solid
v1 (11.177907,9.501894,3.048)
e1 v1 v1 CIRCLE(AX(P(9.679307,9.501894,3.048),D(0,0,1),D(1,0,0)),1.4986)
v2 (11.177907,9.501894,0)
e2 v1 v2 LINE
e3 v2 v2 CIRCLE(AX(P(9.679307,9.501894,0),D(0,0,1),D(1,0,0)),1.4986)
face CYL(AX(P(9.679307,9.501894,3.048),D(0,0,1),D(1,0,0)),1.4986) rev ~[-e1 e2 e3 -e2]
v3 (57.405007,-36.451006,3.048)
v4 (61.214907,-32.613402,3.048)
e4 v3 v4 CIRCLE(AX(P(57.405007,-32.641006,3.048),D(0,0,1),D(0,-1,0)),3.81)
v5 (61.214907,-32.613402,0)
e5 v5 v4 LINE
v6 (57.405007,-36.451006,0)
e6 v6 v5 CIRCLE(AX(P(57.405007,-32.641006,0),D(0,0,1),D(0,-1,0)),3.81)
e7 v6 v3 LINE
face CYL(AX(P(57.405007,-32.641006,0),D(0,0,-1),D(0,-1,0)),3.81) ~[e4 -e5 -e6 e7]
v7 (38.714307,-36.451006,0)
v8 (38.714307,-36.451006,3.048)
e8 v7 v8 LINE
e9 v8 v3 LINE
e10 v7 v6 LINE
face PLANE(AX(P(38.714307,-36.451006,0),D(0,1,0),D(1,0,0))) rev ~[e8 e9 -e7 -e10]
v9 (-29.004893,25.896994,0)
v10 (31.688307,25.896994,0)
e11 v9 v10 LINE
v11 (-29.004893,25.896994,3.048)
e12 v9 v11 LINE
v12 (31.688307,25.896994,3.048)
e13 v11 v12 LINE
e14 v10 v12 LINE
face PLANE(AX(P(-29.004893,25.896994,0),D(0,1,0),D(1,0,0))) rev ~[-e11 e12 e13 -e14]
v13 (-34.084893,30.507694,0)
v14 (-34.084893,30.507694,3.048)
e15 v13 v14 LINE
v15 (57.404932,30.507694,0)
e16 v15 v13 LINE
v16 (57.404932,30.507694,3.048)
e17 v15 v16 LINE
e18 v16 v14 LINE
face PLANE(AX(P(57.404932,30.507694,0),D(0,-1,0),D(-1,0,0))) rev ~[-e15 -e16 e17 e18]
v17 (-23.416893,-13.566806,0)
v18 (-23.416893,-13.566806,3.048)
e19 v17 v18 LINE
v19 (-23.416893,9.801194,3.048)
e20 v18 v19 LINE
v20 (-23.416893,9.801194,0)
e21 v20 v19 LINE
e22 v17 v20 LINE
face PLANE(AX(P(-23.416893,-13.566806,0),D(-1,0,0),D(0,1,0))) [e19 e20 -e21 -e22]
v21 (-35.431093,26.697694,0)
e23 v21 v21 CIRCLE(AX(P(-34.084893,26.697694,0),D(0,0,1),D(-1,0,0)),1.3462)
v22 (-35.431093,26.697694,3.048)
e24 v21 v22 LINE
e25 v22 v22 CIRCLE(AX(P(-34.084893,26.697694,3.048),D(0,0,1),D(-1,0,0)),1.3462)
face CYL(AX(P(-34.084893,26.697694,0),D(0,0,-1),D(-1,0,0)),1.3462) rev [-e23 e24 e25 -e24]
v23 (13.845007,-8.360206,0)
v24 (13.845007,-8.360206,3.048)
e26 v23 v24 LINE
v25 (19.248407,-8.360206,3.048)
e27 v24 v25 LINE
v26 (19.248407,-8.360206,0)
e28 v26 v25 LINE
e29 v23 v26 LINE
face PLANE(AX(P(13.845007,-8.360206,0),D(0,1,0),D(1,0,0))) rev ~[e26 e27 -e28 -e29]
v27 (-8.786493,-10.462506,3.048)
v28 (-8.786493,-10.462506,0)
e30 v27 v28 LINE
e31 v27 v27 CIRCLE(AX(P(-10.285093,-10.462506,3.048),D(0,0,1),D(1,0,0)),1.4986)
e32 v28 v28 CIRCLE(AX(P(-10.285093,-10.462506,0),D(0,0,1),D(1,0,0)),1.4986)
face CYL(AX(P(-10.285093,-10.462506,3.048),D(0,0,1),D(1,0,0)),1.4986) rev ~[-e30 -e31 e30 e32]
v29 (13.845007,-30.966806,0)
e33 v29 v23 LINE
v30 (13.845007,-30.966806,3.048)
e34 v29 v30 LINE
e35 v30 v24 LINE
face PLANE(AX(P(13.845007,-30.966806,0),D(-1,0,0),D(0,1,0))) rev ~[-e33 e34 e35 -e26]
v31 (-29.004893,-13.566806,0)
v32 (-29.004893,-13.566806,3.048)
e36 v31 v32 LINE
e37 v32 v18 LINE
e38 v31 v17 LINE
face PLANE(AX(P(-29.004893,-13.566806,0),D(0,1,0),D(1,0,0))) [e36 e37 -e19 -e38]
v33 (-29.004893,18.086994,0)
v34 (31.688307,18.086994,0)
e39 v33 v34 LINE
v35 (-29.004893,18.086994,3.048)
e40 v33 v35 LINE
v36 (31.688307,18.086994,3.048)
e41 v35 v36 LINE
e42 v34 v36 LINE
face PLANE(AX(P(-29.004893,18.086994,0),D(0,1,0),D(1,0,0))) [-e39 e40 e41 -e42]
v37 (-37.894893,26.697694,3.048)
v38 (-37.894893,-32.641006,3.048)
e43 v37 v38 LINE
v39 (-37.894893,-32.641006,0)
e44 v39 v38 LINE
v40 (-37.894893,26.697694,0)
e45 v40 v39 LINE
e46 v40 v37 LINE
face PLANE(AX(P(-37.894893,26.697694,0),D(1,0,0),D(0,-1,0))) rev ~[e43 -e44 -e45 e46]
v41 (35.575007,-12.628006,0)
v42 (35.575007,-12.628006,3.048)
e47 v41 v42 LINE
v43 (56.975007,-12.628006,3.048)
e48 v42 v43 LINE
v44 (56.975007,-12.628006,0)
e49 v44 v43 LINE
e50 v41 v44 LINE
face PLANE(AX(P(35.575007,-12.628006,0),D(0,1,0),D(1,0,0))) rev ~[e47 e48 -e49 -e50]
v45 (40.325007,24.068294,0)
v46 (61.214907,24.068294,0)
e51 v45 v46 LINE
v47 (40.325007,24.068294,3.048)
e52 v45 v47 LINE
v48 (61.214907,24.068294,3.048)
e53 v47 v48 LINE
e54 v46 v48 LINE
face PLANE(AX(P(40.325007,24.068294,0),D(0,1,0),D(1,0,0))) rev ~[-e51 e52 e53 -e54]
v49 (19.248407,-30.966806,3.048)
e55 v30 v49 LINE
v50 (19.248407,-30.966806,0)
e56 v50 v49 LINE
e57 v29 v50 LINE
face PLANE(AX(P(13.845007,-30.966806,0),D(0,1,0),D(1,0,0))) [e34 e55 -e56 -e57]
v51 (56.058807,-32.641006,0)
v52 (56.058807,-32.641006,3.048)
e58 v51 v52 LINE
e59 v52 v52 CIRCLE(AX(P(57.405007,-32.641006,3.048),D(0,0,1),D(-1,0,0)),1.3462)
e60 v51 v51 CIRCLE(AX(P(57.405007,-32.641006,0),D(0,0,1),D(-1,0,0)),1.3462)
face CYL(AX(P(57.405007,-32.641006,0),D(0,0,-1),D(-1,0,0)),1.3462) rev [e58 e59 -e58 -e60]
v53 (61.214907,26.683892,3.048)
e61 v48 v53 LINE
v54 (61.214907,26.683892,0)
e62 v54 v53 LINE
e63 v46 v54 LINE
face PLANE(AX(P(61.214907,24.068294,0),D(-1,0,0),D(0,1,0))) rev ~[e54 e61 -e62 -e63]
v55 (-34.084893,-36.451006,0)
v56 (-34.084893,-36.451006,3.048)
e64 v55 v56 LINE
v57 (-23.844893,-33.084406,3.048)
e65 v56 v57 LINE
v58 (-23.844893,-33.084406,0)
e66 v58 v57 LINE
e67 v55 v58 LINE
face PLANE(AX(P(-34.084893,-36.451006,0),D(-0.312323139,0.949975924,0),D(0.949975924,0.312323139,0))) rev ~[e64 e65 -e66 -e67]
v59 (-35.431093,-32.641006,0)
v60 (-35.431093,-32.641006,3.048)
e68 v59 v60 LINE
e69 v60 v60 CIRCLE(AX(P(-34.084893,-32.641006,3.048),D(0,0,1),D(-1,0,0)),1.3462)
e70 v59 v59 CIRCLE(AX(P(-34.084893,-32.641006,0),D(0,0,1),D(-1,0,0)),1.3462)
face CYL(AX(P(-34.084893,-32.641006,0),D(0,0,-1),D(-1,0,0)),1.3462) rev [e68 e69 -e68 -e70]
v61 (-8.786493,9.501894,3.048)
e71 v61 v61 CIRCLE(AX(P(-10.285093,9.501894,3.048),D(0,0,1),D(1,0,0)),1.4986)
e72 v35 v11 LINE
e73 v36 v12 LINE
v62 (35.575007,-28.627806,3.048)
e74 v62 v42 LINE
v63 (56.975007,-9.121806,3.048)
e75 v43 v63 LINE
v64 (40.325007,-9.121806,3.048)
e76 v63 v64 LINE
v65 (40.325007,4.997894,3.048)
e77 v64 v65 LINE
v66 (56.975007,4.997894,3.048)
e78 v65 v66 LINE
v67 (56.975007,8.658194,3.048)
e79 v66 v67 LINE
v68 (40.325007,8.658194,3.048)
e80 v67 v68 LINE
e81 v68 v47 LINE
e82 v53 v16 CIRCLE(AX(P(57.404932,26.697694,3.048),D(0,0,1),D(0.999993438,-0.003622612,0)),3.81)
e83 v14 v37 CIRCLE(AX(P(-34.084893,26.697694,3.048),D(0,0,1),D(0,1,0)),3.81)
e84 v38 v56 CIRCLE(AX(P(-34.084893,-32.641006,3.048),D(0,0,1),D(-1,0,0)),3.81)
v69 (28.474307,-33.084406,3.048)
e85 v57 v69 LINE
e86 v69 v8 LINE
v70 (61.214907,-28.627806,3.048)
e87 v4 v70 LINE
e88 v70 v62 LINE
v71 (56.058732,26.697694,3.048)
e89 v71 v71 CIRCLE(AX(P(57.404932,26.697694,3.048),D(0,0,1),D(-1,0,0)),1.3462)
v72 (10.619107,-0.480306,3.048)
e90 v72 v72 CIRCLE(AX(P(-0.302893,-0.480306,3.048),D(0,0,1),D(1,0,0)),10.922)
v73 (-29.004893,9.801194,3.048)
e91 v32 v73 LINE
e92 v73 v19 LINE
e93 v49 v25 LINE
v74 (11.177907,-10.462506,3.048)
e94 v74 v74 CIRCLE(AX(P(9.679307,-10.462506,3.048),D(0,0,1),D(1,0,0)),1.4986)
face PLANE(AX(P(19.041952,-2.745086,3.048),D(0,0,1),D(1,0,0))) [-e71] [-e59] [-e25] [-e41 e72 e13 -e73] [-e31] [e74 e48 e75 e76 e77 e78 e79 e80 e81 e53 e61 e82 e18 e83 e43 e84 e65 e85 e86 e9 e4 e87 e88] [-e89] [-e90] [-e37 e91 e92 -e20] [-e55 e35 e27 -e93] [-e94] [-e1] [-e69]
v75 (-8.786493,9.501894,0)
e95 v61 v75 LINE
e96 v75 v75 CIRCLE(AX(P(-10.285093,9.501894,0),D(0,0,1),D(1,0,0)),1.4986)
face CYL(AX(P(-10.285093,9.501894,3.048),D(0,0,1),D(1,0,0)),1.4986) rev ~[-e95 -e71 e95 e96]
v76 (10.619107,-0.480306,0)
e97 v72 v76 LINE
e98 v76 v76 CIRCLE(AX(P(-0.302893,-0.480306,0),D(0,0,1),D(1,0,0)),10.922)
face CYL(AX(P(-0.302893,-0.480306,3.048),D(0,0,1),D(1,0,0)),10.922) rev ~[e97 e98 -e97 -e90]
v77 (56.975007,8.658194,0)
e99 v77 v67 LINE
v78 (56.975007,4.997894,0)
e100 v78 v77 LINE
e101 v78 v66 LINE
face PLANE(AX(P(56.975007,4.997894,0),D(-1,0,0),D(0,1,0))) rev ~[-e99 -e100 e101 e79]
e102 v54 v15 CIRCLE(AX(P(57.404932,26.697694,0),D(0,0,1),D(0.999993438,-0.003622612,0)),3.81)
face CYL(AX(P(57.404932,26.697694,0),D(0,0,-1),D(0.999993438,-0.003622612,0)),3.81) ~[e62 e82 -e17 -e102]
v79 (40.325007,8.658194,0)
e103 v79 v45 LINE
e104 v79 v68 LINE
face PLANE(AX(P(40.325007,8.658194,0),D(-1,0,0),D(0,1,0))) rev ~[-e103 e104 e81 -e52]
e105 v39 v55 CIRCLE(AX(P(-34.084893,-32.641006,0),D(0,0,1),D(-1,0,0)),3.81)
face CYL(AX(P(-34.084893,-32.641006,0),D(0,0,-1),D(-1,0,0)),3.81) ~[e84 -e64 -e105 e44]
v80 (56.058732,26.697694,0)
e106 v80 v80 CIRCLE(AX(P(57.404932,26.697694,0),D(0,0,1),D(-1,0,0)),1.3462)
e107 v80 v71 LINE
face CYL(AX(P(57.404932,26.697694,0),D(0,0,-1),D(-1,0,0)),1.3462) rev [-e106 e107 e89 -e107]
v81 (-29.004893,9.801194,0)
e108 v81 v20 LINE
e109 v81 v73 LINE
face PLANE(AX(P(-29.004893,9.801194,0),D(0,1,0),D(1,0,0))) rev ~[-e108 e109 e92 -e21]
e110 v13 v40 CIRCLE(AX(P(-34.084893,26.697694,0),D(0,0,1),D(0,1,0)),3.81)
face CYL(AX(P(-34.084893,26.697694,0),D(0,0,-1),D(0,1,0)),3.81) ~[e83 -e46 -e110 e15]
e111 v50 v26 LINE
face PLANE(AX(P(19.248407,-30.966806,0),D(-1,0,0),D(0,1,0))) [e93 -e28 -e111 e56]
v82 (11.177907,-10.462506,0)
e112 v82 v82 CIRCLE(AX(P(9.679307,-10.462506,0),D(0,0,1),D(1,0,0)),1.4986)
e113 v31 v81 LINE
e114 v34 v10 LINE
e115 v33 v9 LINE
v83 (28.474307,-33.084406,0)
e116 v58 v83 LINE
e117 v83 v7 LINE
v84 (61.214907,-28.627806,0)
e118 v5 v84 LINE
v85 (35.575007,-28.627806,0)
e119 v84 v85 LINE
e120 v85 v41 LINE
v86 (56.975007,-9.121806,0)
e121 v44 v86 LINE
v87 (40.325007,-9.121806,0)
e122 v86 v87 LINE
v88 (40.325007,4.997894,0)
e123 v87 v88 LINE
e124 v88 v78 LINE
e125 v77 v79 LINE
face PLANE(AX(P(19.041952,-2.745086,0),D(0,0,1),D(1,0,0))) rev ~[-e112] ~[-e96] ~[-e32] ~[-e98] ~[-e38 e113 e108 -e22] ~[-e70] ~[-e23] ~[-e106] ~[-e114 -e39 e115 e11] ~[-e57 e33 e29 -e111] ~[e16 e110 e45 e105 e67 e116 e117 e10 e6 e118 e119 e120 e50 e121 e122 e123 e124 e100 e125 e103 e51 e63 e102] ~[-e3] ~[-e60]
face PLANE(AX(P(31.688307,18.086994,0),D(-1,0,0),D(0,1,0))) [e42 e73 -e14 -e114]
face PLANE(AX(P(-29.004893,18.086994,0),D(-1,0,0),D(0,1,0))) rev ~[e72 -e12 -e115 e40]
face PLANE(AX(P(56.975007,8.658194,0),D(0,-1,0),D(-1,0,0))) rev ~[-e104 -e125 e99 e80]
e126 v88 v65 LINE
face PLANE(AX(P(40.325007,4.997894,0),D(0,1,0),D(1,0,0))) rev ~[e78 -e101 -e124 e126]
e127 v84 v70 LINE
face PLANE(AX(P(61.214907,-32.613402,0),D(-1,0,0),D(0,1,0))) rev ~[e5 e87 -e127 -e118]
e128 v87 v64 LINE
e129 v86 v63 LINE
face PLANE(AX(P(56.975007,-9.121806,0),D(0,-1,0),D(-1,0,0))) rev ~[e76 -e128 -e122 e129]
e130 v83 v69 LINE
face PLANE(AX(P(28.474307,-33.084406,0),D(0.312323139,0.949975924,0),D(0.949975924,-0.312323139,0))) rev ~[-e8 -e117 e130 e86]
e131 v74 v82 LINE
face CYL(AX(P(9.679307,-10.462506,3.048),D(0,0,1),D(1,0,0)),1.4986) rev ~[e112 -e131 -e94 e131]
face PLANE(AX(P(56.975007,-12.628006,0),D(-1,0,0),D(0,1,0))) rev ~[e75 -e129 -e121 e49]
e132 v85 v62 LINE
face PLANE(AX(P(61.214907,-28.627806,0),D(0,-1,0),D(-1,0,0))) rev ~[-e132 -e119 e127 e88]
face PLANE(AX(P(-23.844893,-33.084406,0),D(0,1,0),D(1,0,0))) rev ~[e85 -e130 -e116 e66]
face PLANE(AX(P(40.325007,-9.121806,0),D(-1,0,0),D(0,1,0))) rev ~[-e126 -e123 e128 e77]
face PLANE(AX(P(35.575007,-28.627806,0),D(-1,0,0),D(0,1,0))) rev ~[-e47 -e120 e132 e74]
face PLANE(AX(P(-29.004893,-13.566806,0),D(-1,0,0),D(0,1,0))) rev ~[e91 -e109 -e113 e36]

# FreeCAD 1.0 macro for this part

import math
import FreeCAD as App
import Part
import Sketcher
from FreeCAD import Vector
Q = App.Units.Quantity

doc = App.newDocument("Part")
body = doc.addObject("PartDesign::Body", "Body")

sketch1 = body.newObject("Sketcher::SketchObject", "Sketch")
sketch1.AttachmentSupport = (doc.getObject("XY_Plane"), [""])
sketch1.MapMode = "FlatFace"
sketch1.addGeometry([
    Part.LineSegment(Vector(57.404932, 30.507694, 0), Vector(-34.084893, 30.507694, 0)),
    Part.ArcOfCircle(Part.Circle(Vector(-34.084893, 26.697694, 0), Vector(0, 0, 1), 3.81), math.radians(90), math.radians(180)),
    Part.LineSegment(Vector(-37.894893, 26.697694, 0), Vector(-37.894893, -32.641006, 0)),
    Part.ArcOfCircle(Part.Circle(Vector(-34.084893, -32.641006, 0), Vector(0, 0, 1), 3.81), math.radians(-180), math.radians(-90)),
    Part.LineSegment(Vector(-34.084893, -36.451006, 0), Vector(-23.844893, -33.084406, 0)),
    Part.LineSegment(Vector(-23.844893, -33.084406, 0), Vector(28.474307, -33.084406, 0)),
    Part.LineSegment(Vector(28.474307, -33.084406, 0), Vector(38.714307, -36.451006, 0)),
    Part.LineSegment(Vector(38.714307, -36.451006, 0), Vector(57.405007, -36.451006, 0)),
    Part.ArcOfCircle(Part.Circle(Vector(57.405007, -32.641006, 0), Vector(0, 0, 1), 3.81), math.radians(-90), math.radians(0.415122)),
    Part.LineSegment(Vector(61.214907, -32.613402, 0), Vector(61.214907, -28.627806, 0)),
    Part.LineSegment(Vector(61.214907, -28.627806, 0), Vector(35.575007, -28.627806, 0)),
    Part.LineSegment(Vector(35.575007, -28.627806, 0), Vector(35.575007, -12.628006, 0)),
    Part.LineSegment(Vector(35.575007, -12.628006, 0), Vector(56.975007, -12.628006, 0)),
    Part.LineSegment(Vector(56.975007, -12.628006, 0), Vector(56.975007, -9.121806, 0)),
    Part.LineSegment(Vector(56.975007, -9.121806, 0), Vector(40.325007, -9.121806, 0)),
    Part.LineSegment(Vector(40.325007, -9.121806, 0), Vector(40.325007, 4.997894, 0)),
    Part.LineSegment(Vector(40.325007, 4.997894, 0), Vector(56.975007, 4.997894, 0)),
    Part.LineSegment(Vector(56.975007, 4.997894, 0), Vector(56.975007, 8.658194, 0)),
    Part.LineSegment(Vector(56.975007, 8.658194, 0), Vector(40.325007, 8.658194, 0)),
    Part.LineSegment(Vector(40.325007, 8.658194, 0), Vector(40.325007, 24.068294, 0)),
    Part.LineSegment(Vector(40.325007, 24.068294, 0), Vector(61.214907, 24.068294, 0)),
    Part.LineSegment(Vector(61.214907, 24.068294, 0), Vector(61.214907, 26.683892, 0)),
    Part.ArcOfCircle(Part.Circle(Vector(57.404932, 26.697694, 0), Vector(0, 0, 1), 3.81), math.radians(-0.207561), math.radians(90)),
    Part.Circle(Vector(-34.084893, -32.641006, 0), Vector(0, 0, 1), 1.3462),
    Part.LineSegment(Vector(19.248407, -30.966806, 0), Vector(13.845007, -30.966806, 0)),
    Part.LineSegment(Vector(13.845007, -30.966806, 0), Vector(13.845007, -8.360206, 0)),
    Part.LineSegment(Vector(13.845007, -8.360206, 0), Vector(19.248407, -8.360206, 0)),
    Part.LineSegment(Vector(19.248407, -8.360206, 0), Vector(19.248407, -30.966806, 0)),
    Part.Circle(Vector(57.405007, -32.641006, 0), Vector(0, 0, 1), 1.3462),
    Part.LineSegment(Vector(-23.416893, -13.566806, 0), Vector(-29.004893, -13.566806, 0)),
    Part.LineSegment(Vector(-29.004893, -13.566806, 0), Vector(-29.004893, 9.801194, 0)),
    Part.LineSegment(Vector(-29.004893, 9.801194, 0), Vector(-23.416893, 9.801194, 0)),
    Part.LineSegment(Vector(-23.416893, 9.801194, 0), Vector(-23.416893, -13.566806, 0)),
    Part.Circle(Vector(-34.084893, 26.697694, 0), Vector(0, 0, 1), 1.3462),
    Part.LineSegment(Vector(31.688307, 18.086994, 0), Vector(-29.004893, 18.086994, 0)),
    Part.LineSegment(Vector(-29.004893, 18.086994, 0), Vector(-29.004893, 25.896994, 0)),
    Part.LineSegment(Vector(-29.004893, 25.896994, 0), Vector(31.688307, 25.896994, 0)),
    Part.LineSegment(Vector(31.688307, 25.896994, 0), Vector(31.688307, 18.086994, 0)),
    Part.Circle(Vector(57.404932, 26.697694, 0), Vector(0, 0, 1), 1.3462),
], False)
sketch1.addConstraint([
    Sketcher.Constraint("Tangent", 0, 2, 1, 1),
    Sketcher.Constraint("Tangent", 1, 2, 2, 1),
    Sketcher.Constraint("Tangent", 2, 2, 3, 1),
    Sketcher.Constraint("Coincident", 3, 2, 4, 1),
    Sketcher.Constraint("Coincident", 4, 2, 5, 1),
    Sketcher.Constraint("Coincident", 5, 2, 6, 1),
    Sketcher.Constraint("Coincident", 6, 2, 7, 1),
    Sketcher.Constraint("Tangent", 7, 2, 8, 1),
    Sketcher.Constraint("Coincident", 8, 2, 9, 1),
    Sketcher.Constraint("Coincident", 9, 2, 10, 1),
    Sketcher.Constraint("Coincident", 10, 2, 11, 1),
    Sketcher.Constraint("Coincident", 11, 2, 12, 1),
    Sketcher.Constraint("Coincident", 12, 2, 13, 1),
    Sketcher.Constraint("Coincident", 13, 2, 14, 1),
    Sketcher.Constraint("Coincident", 14, 2, 15, 1),
    Sketcher.Constraint("Coincident", 15, 2, 16, 1),
    Sketcher.Constraint("Coincident", 16, 2, 17, 1),
    Sketcher.Constraint("Coincident", 17, 2, 18, 1),
    Sketcher.Constraint("Coincident", 18, 2, 19, 1),
    Sketcher.Constraint("Coincident", 19, 2, 20, 1),
    Sketcher.Constraint("Coincident", 20, 2, 21, 1),
    Sketcher.Constraint("Coincident", 21, 2, 22, 1),
    Sketcher.Constraint("Tangent", 22, 2, 0, 1),
    Sketcher.Constraint("Coincident", 24, 2, 25, 1),
    Sketcher.Constraint("Coincident", 25, 2, 26, 1),
    Sketcher.Constraint("Coincident", 26, 2, 27, 1),
    Sketcher.Constraint("Coincident", 27, 2, 24, 1),
    Sketcher.Constraint("Coincident", 29, 2, 30, 1),
    Sketcher.Constraint("Coincident", 30, 2, 31, 1),
    Sketcher.Constraint("Coincident", 31, 2, 32, 1),
    Sketcher.Constraint("Coincident", 32, 2, 29, 1),
    Sketcher.Constraint("Coincident", 34, 2, 35, 1),
    Sketcher.Constraint("Coincident", 35, 2, 36, 1),
    Sketcher.Constraint("Coincident", 36, 2, 37, 1),
    Sketcher.Constraint("Coincident", 37, 2, 34, 1),
    Sketcher.Constraint("Horizontal", 0),
    Sketcher.Constraint("Vertical", 2),
    Sketcher.Constraint("Horizontal", 5),
    Sketcher.Constraint("Horizontal", 7),
    Sketcher.Constraint("Vertical", 9),
    Sketcher.Constraint("Horizontal", 10),
    Sketcher.Constraint("Vertical", 11),
    Sketcher.Constraint("Horizontal", 12),
    Sketcher.Constraint("Vertical", 13),
    Sketcher.Constraint("Horizontal", 14),
    Sketcher.Constraint("Vertical", 15),
    Sketcher.Constraint("Horizontal", 16),
    Sketcher.Constraint("Vertical", 17),
    Sketcher.Constraint("Horizontal", 18),
    Sketcher.Constraint("Vertical", 19),
    Sketcher.Constraint("Horizontal", 20),
    Sketcher.Constraint("Vertical", 21),
    Sketcher.Constraint("Horizontal", 24),
    Sketcher.Constraint("Vertical", 25),
    Sketcher.Constraint("Horizontal", 26),
    Sketcher.Constraint("Vertical", 27),
    Sketcher.Constraint("Horizontal", 29),
    Sketcher.Constraint("Vertical", 30),
    Sketcher.Constraint("Horizontal", 31),
    Sketcher.Constraint("Vertical", 32),
    Sketcher.Constraint("Horizontal", 34),
    Sketcher.Constraint("Vertical", 35),
    Sketcher.Constraint("Horizontal", 36),
    Sketcher.Constraint("Vertical", 37),
    Sketcher.Constraint("Coincident", 23, 3, 3, 3),
    Sketcher.Constraint("Coincident", 28, 3, 8, 3),
    Sketcher.Constraint("Coincident", 33, 3, 1, 3),
    Sketcher.Constraint("Coincident", 38, 3, 22, 3),
    Sketcher.Constraint("Equal", 1, 3),
    Sketcher.Constraint("Equal", 3, 8),
    Sketcher.Constraint("Equal", 8, 22),
    Sketcher.Constraint("Equal", 23, 28),
    Sketcher.Constraint("Equal", 28, 33),
    Sketcher.Constraint("Equal", 33, 38),
    Sketcher.Constraint("Horizontal", 3, 3, 8, 3),
    Sketcher.Constraint("Vertical", 0, 2, 3, 2),
    Sketcher.Constraint("Vertical", 13, 2, 16, 2),
    Sketcher.Constraint("Vertical", 15, 2, 18, 2),
    Sketcher.Constraint("Vertical", 9, 2, 20, 2),
    Sketcher.Constraint("Vertical", 30, 2, 34, 2),
    Sketcher.Constraint("Equal", 4, 6),
    Sketcher.Constraint("Radius", 1, Q("0.15 in")),
    Sketcher.Constraint("Diameter", 23, Q("0.106 in")),
    Sketcher.Constraint("DistanceX", 29, 2, 29, 1, Q("0.22 in")),
    Sketcher.Constraint("DistanceY", 30, 1, 30, 2, Q("0.92 in")),
    Sketcher.Constraint("DistanceY", 13, 2, 17, 2, Q("0.7 in")),
    Sketcher.Constraint("DistanceX", 3, 3, 29, 2, Q("0.2 in")),
    Sketcher.Constraint("DistanceX", 5, 2, 8, 2, Q("1.289 in")),
    Sketcher.Constraint("DistanceY", 8, 3, 9, 2, Q("0.158 in")),
    Sketcher.Constraint("DistanceY", 24, 2, 11, 2, Q("0.722 in")),
    Sketcher.Constraint("DistanceX", 5, 1, 5, 2, 52.3192),
    Sketcher.Constraint("DistanceX", 7, 1, 7, 2, 18.6907),
    Sketcher.Constraint("DistanceX", 10, 2, 10, 1, 25.6399),
    Sketcher.Constraint("DistanceX", 12, 1, 12, 2, 21.4),
    Sketcher.Constraint("DistanceX", 14, 2, 14, 1, 16.65),
    Sketcher.Constraint("DistanceX", 24, 2, 24, 1, 5.4034),
    Sketcher.Constraint("DistanceX", 34, 2, 34, 1, 60.6932),
    Sketcher.Constraint("DistanceY", 2, 2, 2, 1, 59.3387),
    Sketcher.Constraint("DistanceY", 11, 1, 11, 2, 15.9998),
    Sketcher.Constraint("DistanceY", 13, 1, 13, 2, 3.5062),
    Sketcher.Constraint("DistanceY", 15, 1, 15, 2, 14.1197),
    Sketcher.Constraint("DistanceY", 19, 1, 19, 2, 15.4101),
    Sketcher.Constraint("DistanceY", 25, 1, 25, 2, 22.6066),
    Sketcher.Constraint("DistanceY", 35, 1, 35, 2, 7.81),
    Sketcher.Constraint("DistanceY", 8, 2, -1, 1, 32.613402),
    Sketcher.Constraint("DistanceY", 4, 2, 3, 3, 0.4434),
    Sketcher.Constraint("DistanceX", 24, 2, 5, 2, 14.6293),
    Sketcher.Constraint("DistanceY", 3, 3, 29, 2, 19.0742),
    Sketcher.Constraint("DistanceY", 30, 2, 34, 2, 8.2858),
    Sketcher.Constraint("DistanceX", 0, 2, 0, 1, 91.489825),
    Sketcher.Constraint("DistanceY", 9, 1, 9, 2, 3.985596),
    Sketcher.Constraint("DistanceX", 1, 3, -1, 1, 34.084893),
])
pad1 = body.newObject("PartDesign::Pad", "Pad")
pad1.Profile = sketch1
pad1.Length = Q("0.12 in")

sketch2 = body.newObject("Sketcher::SketchObject", "Sketch001")
sketch2.AttachmentSupport = (doc.getObject("XY_Plane"), [""])
sketch2.MapMode = "FlatFace"
sketch2.AttachmentOffset = App.Placement(Vector(0, 0, 0.12 * 25.4), App.Rotation())
sketch2.addGeometry([
    Part.Circle(Vector(-0.302893, -0.480306, 0), Vector(0, 0, 1), 10.922),
    Part.Circle(Vector(-10.285093, -10.462506, 0), Vector(0, 0, 1), 1.4986),
    Part.Circle(Vector(-10.285093, 9.501894, 0), Vector(0, 0, 1), 1.4986),
    Part.Circle(Vector(9.679307, -10.462506, 0), Vector(0, 0, 1), 1.4986),
    Part.Circle(Vector(9.679307, 9.501894, 0), Vector(0, 0, 1), 1.4986),
], False)
sketch2.addConstraint([
    Sketcher.Constraint("Equal", 1, 2),
    Sketcher.Constraint("Equal", 2, 3),
    Sketcher.Constraint("Equal", 3, 4),
    Sketcher.Constraint("Horizontal", 1, 3, 3, 3),
    Sketcher.Constraint("Horizontal", 2, 3, 4, 3),
    Sketcher.Constraint("Vertical", 1, 3, 2, 3),
    Sketcher.Constraint("Vertical", 3, 3, 4, 3),
    Sketcher.Constraint("Diameter", 0, Q("0.86 in")),
    Sketcher.Constraint("Diameter", 1, Q("0.118 in")),
    Sketcher.Constraint("DistanceX", 1, 3, 0, 3, Q("0.393 in")),
    Sketcher.Constraint("DistanceY", 1, 3, 0, 3, Q("0.393 in")),
    Sketcher.Constraint("DistanceY", 0, 3, 2, 3, Q("0.393 in")),
    Sketcher.Constraint("DistanceX", 0, 3, 3, 3, Q("0.393 in")),
    Sketcher.Constraint("DistanceX", 0, 3, -1, 1, 0.302893),
    Sketcher.Constraint("DistanceY", 0, 3, -1, 1, 0.480306),
])
pocket1 = body.newObject("PartDesign::Pocket", "Pocket")
pocket1.Profile = sketch2
pocket1.Type = "ThroughAll"

doc.recompute()
